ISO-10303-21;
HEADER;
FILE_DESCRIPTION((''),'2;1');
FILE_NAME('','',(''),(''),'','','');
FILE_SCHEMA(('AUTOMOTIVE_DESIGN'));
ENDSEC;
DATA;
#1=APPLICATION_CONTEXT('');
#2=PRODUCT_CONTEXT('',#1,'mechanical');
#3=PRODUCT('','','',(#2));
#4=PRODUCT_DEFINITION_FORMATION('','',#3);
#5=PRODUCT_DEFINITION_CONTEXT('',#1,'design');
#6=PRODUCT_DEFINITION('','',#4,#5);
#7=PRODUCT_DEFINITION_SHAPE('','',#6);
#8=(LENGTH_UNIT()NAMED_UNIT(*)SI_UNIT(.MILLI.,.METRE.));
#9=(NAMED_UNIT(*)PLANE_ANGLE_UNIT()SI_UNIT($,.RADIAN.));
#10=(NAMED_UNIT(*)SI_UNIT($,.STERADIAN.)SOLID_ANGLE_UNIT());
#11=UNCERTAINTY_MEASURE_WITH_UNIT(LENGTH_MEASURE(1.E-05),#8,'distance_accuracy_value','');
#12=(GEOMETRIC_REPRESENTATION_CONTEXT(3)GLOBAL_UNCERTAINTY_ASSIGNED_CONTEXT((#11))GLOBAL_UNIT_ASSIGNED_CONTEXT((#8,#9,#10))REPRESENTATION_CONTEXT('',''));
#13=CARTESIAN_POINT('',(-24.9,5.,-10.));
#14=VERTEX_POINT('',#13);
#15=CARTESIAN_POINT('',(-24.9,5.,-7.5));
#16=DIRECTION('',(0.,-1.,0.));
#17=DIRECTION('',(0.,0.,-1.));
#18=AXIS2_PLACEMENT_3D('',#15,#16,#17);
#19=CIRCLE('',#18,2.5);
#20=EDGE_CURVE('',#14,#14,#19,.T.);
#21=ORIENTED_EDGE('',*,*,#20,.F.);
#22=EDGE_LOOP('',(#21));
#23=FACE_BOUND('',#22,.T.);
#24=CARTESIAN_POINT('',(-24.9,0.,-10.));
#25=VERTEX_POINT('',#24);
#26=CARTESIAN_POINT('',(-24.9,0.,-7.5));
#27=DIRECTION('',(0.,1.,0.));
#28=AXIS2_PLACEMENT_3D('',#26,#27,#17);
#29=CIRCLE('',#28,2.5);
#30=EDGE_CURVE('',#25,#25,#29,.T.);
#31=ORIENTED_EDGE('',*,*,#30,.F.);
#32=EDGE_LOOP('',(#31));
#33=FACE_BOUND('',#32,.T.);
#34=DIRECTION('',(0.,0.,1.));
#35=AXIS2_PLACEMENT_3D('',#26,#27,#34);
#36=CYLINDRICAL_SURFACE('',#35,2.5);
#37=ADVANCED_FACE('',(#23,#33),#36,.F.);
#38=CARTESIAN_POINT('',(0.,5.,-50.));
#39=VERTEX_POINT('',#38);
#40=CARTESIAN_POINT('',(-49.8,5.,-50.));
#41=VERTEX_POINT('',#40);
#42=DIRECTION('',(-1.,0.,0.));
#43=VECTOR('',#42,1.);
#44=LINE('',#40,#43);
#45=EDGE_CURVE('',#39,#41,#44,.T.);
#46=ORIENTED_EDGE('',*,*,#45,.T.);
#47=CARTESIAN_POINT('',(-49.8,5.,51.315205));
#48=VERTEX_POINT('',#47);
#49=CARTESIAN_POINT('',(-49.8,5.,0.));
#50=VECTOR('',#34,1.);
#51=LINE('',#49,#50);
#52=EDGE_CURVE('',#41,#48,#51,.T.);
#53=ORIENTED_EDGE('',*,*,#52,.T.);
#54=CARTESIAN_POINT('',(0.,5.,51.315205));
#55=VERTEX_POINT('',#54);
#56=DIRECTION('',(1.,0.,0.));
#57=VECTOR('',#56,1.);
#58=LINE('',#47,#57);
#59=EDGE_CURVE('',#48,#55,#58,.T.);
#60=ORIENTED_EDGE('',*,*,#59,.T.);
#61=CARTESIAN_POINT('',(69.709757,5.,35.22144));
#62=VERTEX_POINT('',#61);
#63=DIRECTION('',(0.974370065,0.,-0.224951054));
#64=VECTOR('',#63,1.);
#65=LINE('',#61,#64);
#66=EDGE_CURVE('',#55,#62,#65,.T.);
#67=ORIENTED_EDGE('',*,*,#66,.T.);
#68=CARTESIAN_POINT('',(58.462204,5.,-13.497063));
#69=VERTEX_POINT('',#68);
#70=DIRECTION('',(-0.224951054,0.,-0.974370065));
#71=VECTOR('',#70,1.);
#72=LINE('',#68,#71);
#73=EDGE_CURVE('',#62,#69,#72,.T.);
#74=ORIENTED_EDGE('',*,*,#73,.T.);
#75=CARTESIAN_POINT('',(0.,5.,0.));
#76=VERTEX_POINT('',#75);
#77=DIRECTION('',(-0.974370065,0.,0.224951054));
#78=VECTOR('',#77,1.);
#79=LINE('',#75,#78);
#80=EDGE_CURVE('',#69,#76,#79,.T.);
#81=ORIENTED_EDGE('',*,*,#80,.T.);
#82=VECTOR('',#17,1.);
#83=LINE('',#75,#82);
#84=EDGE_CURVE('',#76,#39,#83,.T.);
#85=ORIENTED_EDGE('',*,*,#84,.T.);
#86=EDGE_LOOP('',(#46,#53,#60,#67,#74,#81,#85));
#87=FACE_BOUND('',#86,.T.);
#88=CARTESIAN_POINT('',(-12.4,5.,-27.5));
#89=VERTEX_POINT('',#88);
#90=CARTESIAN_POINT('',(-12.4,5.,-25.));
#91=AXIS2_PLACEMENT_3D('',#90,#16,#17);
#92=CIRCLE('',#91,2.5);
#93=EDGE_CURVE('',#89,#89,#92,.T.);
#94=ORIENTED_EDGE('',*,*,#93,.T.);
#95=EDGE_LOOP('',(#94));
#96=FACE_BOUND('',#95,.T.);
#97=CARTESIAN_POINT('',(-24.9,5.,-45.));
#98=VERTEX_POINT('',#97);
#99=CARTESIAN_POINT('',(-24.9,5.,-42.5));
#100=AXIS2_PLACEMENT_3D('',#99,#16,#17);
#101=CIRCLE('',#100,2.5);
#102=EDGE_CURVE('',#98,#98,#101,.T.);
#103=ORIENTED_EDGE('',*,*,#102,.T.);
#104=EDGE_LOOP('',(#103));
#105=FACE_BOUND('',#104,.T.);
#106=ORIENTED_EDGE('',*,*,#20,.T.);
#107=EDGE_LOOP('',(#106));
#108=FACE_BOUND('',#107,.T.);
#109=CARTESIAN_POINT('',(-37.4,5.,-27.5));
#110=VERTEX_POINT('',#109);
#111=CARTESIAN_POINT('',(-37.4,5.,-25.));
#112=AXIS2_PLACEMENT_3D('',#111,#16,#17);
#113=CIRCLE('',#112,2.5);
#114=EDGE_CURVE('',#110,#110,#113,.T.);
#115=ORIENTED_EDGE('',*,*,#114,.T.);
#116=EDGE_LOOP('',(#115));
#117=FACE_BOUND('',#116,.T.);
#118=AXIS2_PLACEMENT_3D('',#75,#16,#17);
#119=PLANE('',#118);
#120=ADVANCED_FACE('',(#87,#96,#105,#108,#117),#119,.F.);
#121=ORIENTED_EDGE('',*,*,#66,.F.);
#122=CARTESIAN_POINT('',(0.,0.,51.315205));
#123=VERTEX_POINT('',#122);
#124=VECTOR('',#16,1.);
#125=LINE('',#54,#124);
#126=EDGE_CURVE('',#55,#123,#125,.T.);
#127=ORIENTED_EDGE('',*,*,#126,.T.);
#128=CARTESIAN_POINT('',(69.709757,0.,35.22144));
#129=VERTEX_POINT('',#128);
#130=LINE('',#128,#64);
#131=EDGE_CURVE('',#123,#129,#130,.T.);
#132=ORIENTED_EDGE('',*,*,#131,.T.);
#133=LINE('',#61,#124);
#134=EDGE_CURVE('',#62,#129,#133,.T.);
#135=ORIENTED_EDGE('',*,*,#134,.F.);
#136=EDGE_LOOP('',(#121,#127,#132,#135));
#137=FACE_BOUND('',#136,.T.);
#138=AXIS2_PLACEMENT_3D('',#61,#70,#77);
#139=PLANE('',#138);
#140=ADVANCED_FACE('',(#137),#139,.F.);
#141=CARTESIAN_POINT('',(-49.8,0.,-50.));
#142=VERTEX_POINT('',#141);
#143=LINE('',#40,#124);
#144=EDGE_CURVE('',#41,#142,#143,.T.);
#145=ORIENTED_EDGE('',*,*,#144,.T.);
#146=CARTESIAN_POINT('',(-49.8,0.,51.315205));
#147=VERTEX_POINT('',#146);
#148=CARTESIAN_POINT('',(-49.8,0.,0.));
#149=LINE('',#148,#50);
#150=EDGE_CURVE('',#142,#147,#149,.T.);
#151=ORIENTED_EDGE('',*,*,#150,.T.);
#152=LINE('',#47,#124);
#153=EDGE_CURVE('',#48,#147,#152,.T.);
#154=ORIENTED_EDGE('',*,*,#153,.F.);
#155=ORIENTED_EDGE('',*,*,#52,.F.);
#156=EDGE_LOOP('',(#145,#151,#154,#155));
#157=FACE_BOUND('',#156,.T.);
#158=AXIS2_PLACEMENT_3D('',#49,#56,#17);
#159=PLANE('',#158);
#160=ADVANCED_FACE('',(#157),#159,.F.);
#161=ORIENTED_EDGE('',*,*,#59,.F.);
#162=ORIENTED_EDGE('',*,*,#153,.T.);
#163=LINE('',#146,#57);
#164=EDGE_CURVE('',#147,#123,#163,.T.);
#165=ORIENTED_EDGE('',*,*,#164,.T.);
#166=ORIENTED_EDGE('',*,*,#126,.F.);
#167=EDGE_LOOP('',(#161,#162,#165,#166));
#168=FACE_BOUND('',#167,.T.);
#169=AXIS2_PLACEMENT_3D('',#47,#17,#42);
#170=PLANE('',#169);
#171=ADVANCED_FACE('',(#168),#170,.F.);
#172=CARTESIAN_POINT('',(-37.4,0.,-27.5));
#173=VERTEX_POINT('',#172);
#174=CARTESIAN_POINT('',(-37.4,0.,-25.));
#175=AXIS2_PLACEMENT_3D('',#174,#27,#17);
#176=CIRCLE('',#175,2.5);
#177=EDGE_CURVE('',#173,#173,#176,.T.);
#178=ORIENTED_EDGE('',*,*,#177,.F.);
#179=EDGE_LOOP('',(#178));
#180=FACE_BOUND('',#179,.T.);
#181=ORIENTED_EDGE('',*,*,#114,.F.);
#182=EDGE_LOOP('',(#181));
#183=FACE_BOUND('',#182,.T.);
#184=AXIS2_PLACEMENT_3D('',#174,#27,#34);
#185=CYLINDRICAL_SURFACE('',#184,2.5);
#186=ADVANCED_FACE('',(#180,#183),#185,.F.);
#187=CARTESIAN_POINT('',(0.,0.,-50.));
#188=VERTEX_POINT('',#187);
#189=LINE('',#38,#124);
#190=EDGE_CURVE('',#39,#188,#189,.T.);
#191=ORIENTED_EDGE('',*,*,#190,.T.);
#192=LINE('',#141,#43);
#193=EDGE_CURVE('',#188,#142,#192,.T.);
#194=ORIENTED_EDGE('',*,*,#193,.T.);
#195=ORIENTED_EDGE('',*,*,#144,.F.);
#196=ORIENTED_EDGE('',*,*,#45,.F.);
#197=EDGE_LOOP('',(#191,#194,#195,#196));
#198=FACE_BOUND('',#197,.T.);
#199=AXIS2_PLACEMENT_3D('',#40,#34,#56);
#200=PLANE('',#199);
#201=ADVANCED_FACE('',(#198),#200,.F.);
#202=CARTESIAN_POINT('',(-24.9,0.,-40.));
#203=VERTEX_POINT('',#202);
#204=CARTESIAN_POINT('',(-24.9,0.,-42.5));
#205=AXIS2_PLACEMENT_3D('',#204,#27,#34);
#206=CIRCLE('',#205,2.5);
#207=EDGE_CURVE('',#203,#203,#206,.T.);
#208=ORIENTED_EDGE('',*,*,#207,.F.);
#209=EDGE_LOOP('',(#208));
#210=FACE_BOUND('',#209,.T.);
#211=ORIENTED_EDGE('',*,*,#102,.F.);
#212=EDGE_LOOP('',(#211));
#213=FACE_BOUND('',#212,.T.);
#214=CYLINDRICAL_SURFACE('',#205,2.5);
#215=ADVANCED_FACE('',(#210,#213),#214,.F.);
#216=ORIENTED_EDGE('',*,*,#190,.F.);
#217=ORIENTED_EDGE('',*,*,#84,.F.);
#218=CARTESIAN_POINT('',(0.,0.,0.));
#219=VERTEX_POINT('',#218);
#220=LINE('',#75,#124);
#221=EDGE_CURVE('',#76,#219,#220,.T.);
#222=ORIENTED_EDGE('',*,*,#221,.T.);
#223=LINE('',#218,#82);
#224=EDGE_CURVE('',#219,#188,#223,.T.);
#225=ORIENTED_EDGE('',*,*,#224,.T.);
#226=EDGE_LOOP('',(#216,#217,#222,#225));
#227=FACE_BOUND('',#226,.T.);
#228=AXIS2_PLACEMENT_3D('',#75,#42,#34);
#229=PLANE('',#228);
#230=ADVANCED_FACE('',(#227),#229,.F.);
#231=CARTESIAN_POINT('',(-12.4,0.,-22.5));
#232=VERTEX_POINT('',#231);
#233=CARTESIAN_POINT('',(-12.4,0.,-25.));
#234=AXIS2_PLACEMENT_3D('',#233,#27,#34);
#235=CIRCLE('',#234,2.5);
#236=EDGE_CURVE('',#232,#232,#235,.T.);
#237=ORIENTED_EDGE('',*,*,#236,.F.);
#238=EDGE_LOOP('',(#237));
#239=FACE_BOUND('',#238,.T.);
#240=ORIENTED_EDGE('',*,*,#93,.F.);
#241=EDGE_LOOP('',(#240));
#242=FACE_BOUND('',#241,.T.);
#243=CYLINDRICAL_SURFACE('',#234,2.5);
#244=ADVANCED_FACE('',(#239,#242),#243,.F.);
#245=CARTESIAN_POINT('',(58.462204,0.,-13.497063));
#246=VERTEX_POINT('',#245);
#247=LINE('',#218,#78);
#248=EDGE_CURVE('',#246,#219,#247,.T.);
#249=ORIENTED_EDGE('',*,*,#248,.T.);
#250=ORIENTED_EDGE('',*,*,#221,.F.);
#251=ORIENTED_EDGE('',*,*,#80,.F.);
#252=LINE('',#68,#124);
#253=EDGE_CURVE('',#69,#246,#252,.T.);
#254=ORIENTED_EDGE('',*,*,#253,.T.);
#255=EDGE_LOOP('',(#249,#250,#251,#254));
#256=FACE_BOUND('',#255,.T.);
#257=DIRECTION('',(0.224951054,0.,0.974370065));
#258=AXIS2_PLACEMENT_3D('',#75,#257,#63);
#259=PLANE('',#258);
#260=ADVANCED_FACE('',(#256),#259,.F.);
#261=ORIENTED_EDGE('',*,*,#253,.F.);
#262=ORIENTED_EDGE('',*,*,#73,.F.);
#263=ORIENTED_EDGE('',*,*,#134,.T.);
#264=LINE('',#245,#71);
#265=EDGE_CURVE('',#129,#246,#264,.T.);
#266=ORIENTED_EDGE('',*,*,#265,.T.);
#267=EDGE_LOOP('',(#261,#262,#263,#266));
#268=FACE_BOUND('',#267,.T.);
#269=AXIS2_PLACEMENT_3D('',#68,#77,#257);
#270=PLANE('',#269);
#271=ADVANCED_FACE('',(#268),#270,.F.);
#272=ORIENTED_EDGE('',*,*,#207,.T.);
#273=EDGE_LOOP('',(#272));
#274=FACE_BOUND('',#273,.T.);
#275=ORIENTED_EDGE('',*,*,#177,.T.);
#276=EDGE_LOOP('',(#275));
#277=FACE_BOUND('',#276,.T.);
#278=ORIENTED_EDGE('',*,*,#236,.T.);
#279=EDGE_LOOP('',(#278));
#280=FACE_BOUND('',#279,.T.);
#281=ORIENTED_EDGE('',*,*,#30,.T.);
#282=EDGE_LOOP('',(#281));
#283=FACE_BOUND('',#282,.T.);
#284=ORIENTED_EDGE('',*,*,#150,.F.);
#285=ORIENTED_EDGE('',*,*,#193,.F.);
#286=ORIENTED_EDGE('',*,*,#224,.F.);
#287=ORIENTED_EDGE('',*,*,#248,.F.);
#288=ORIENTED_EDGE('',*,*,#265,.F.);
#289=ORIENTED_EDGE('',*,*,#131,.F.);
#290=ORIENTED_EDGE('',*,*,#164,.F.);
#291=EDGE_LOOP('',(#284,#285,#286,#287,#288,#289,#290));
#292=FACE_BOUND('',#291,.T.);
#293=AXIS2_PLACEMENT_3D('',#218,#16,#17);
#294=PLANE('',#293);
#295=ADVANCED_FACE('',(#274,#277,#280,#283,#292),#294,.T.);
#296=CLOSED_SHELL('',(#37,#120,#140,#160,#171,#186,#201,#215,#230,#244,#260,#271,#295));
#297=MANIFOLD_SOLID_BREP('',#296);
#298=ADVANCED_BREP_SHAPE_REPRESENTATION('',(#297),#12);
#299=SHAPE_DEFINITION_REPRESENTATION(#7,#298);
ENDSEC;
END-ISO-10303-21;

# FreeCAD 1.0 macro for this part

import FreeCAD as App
import Part
import Sketcher
from FreeCAD import Vector
Q = App.Units.Quantity


def add_polygon(sketch, points):
    """Adds a closed chain of lines whose ends are joined by coincident constraints."""
    first, n = sketch.GeometryCount, len(points)
    for a, b in zip(points, points[1:] + points[:1]):
        sketch.addGeometry(Part.LineSegment(App.Vector(*a, 0), App.Vector(*b, 0)), False)
    for i in range(n):
        sketch.addConstraint(Sketcher.Constraint("Coincident", first + i, 2, first + (i + 1) % n, 1))

doc = App.newDocument("Part")
body = doc.addObject("PartDesign::Body", "Body")

# Sketch on XZ plane
sketch1 = body.newObject("Sketcher::SketchObject", "Sketch")
sketch1.AttachmentSupport = (doc.getObject("XZ_Plane"), [""])
sketch1.MapMode = "FlatFace"
add_polygon(sketch1, [(58, -13), (0, 0), (0, -50), (-50, -50), (-50, 51), (0, 51), (70, 35)])  # lines 0-6
sketch1.addConstraint([
    Sketcher.Constraint("Vertical", 1),
    Sketcher.Constraint("Horizontal", 2),
    Sketcher.Constraint("Vertical", 3),
    Sketcher.Constraint("Horizontal", 4),
    Sketcher.Constraint("Coincident", 0, 2, -1, 1),
    Sketcher.Constraint("PointOnObject", 4, 2, -2),
    Sketcher.Constraint("Parallel", 0, 5),
    Sketcher.Constraint("Perpendicular", 5, 6),
    Sketcher.Constraint("DistanceY", 1, 2, 1, 1, Q("50 mm")),
    Sketcher.Constraint("Angle", 0, Q("167 deg")),
    Sketcher.Constraint("Distance", 0, Q("60 mm")),
    Sketcher.Constraint("Distance", 6, Q("50 mm")),
    Sketcher.Constraint("DistanceX", 2, 2, 2, 1, Q("49.8 mm")),
])
pad1 = body.newObject("PartDesign::Pad", "Pad")
pad1.Profile = sketch1
pad1.Length = 5
pad1.Reversed = True

# Sketch on XZ plane
sketch2 = body.newObject("Sketcher::SketchObject", "Sketch001")
sketch2.AttachmentSupport = (doc.getObject("XZ_Plane"), [""])
sketch2.MapMode = "FlatFace"
sketch2.AttachmentOffset = App.Placement(Vector(0, 0, -5), App.Rotation())
sketch2.addGeometry([
    Part.Circle(Vector(-24.9, -42.5, 0), Vector(0, 0, 1), 2.5),
    Part.Circle(Vector(-24.9, -7.5, 0), Vector(0, 0, 1), 2.5),
    Part.Circle(Vector(-12.4, -25, 0), Vector(0, 0, 1), 2.5),
    Part.Circle(Vector(-37.4, -25, 0), Vector(0, 0, 1), 2.5),
], False)
sketch2.addConstraint([
    Sketcher.Constraint("Equal", 0, 1),
    Sketcher.Constraint("Equal", 1, 2),
    Sketcher.Constraint("Equal", 2, 3),
    Sketcher.Constraint("Horizontal", 2, 3, 3, 3),
    Sketcher.Constraint("Vertical", 0, 3, 1, 3),
    Sketcher.Constraint("Diameter", 0, Q("5 mm")),
    Sketcher.Constraint("DistanceY", 2, 3, -1, 1, Q("25 mm")),
    Sketcher.Constraint("DistanceY", 0, 3, 1, 3, Q("35 mm")),
    Sketcher.Constraint("DistanceX", 3, 3, 2, 3, Q("25 mm")),
    Sketcher.Constraint("DistanceX", 0, 3, -1, 1, Q("24.9 mm")),
    Sketcher.Constraint("DistanceY", 0, 3, -1, 1, Q("42.5 mm")),
    Sketcher.Constraint("DistanceX", 2, 3, -1, 1, Q("12.4 mm")),
])
pocket1 = body.newObject("PartDesign::Pocket", "Pocket")
pocket1.Profile = sketch2
pocket1.Type = "ThroughAll"
pocket1.Midplane = True

doc.recompute()
